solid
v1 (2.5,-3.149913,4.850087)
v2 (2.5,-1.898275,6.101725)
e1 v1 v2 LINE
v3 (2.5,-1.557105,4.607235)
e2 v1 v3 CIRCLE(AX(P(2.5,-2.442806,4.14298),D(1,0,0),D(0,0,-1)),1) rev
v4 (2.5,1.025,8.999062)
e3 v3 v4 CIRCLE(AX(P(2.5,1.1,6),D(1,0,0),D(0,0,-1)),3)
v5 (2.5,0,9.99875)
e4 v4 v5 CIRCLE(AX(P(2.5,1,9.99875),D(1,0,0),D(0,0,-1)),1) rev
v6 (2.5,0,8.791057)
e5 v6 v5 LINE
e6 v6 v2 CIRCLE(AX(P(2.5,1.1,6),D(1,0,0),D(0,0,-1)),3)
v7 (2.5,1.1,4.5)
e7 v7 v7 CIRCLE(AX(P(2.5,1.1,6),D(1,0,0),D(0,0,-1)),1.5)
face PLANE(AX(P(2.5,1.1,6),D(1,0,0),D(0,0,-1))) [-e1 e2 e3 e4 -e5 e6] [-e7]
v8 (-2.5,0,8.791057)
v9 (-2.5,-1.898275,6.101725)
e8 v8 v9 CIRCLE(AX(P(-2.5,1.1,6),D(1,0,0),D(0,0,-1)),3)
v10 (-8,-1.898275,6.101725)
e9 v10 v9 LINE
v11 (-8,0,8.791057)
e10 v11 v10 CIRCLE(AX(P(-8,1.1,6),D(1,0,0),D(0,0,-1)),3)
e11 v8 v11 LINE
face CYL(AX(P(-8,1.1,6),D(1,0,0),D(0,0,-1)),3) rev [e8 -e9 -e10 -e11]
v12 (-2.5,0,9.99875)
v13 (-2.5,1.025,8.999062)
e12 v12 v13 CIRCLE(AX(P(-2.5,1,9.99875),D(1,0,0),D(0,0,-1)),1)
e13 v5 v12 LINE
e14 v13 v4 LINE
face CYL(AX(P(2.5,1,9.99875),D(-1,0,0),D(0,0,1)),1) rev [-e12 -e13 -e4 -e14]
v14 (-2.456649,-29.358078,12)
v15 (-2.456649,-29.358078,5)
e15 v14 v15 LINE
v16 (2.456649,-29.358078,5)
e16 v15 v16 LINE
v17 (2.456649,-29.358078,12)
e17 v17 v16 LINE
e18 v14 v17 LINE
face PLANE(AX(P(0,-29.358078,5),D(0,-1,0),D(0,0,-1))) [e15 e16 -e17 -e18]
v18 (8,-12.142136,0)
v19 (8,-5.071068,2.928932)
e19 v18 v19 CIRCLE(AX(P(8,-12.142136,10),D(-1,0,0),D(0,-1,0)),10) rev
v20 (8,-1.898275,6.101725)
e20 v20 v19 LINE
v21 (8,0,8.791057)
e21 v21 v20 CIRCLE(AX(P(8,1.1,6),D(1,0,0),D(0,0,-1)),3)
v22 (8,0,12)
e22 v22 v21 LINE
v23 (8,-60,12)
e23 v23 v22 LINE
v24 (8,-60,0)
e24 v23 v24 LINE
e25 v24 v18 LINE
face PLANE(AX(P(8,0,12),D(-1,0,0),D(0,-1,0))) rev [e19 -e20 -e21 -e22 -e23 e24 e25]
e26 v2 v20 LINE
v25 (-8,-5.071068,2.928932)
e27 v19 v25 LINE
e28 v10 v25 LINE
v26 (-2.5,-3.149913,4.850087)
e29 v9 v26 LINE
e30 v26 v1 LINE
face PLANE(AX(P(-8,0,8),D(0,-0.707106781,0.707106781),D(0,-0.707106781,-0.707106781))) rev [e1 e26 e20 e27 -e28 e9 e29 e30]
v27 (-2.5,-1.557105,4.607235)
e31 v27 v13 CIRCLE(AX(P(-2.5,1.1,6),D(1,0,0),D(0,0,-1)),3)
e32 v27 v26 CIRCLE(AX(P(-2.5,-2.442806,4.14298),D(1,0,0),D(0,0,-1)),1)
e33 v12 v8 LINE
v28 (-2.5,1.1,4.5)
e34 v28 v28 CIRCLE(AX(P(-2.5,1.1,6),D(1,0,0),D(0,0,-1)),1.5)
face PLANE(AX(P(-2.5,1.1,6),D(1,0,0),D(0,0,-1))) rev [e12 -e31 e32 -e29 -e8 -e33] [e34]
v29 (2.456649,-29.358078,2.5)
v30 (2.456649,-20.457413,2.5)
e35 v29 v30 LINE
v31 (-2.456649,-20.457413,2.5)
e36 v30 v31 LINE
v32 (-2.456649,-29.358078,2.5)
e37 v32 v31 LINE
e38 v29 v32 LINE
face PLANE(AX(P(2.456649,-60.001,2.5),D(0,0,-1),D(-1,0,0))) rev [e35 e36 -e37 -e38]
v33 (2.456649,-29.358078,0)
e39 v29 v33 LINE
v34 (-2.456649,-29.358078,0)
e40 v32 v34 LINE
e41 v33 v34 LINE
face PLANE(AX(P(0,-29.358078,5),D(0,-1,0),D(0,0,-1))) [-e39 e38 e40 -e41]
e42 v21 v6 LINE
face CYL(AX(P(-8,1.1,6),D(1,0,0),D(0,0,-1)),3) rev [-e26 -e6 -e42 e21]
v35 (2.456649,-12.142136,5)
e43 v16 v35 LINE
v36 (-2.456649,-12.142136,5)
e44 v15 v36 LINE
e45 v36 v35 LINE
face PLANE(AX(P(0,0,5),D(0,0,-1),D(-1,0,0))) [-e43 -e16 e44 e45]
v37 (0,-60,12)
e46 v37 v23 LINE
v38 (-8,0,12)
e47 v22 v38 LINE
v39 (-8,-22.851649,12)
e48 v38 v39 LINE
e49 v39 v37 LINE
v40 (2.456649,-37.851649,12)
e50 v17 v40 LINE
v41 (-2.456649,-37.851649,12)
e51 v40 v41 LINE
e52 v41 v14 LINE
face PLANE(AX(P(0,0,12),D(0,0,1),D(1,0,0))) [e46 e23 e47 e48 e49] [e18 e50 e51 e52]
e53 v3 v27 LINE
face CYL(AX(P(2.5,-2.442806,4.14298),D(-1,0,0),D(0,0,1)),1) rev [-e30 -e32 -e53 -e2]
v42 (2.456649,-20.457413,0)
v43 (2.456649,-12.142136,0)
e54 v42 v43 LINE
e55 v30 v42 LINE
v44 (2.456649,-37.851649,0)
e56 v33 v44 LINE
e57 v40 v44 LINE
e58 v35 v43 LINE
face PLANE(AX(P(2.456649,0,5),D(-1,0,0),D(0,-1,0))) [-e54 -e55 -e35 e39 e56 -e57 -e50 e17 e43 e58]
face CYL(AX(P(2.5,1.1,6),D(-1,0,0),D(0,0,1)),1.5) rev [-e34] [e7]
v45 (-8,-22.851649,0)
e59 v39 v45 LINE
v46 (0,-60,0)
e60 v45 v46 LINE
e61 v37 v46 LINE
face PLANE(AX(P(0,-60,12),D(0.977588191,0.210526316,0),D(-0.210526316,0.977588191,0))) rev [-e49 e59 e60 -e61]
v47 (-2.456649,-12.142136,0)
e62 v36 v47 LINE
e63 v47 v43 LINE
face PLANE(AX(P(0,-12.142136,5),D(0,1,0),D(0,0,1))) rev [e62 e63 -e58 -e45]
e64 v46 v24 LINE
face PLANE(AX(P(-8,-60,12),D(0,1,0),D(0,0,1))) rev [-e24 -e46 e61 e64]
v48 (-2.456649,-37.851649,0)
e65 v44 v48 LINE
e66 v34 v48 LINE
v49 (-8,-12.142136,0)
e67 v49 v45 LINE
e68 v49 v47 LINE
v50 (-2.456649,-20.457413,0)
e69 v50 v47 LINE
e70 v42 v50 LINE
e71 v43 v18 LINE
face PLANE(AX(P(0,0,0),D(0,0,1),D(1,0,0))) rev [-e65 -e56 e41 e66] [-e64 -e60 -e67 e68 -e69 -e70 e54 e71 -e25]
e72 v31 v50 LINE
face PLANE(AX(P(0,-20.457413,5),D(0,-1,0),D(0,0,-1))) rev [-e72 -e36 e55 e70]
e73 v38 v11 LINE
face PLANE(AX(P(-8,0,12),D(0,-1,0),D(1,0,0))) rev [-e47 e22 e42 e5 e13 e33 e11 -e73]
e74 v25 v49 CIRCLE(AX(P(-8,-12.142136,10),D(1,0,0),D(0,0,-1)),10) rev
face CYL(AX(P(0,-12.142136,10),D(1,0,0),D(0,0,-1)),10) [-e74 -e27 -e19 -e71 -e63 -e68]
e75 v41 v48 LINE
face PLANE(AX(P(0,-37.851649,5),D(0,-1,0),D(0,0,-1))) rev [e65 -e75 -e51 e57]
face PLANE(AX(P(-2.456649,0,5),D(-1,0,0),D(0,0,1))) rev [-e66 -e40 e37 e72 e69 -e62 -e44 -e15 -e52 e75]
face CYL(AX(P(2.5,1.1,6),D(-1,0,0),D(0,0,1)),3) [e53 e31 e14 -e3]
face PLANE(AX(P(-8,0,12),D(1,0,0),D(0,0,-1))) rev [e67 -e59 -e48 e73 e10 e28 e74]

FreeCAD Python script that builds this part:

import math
import FreeCAD as App
import Part
import Sketcher

V = App.Vector
Q = App.Units.Quantity


def edges_at(feature, points):
    """Names of the edges that pass closest to the given points."""
    edges = feature.Shape.Edges
    near = lambda p: min(range(len(edges)), key=lambda i: edges[i].distToShape(Part.Vertex(*p))[0])
    return sorted({f"Edge{near(p) + 1}" for p in points})


def add_polygon(sketch, points):
    """Adds a closed chain of lines whose ends are joined by coincident constraints."""
    first, n = sketch.GeometryCount, len(points)
    for a, b in zip(points, points[1:] + points[:1]):
        sketch.addGeometry(Part.LineSegment(App.Vector(*a, 0), App.Vector(*b, 0)), False)
    for i in range(n):
        sketch.addConstraint(Sketcher.Constraint("Coincident", first + i, 2, first + (i + 1) % n, 1))

doc = App.newDocument("Part")
body = doc.addObject("PartDesign::Body", "Body")

sketch1 = body.newObject("Sketcher::SketchObject", "Sketch")
sketch1.AttachmentSupport = (doc.getObject("XY_Plane"), [""])
sketch1.MapMode = "FlatFace"
add_polygon(sketch1, [(-8, 0), (-8, -60), (8, -60), (8, 0)])
sketch1.addConstraint(Sketcher.Constraint("Vertical", 0))
sketch1.addConstraint(Sketcher.Constraint("Horizontal", 1))
sketch1.addConstraint(Sketcher.Constraint("Vertical", 2))
sketch1.addConstraint(Sketcher.Constraint("Horizontal", 3))
sketch1.addConstraint(Sketcher.Constraint("Symmetric", 2, 2, 3, 2, -1, 1))
sketch1.addConstraint(Sketcher.Constraint("DistanceX", 1, 1, 1, 2, Q("16 mm")))
sketch1.addConstraint(Sketcher.Constraint("DistanceY", 0, 2, 0, 1, Q("60 mm")))
pad1 = body.newObject("PartDesign::Pad", "Pad")
pad1.Profile = sketch1
pad1.Length = 12

sketch2 = body.newObject("Sketcher::SketchObject", "Sketch001")
sketch2.AttachmentSupport = (doc.getObject("YZ_Plane"), [""])
sketch2.MapMode = "FlatFace"
add_polygon(sketch2, [(0, 0), (0, 8), (-8, 0)])
sketch2.addConstraint(Sketcher.Constraint("Vertical", 0))
sketch2.addConstraint(Sketcher.Constraint("Horizontal", 2))
sketch2.addConstraint(Sketcher.Constraint("Coincident", 2, 2, -1, 1))
sketch2.addConstraint(Sketcher.Constraint("Equal", 2, 0))
sketch2.addConstraint(Sketcher.Constraint("DistanceX", 2, 1, 2, 2, Q("8 mm")))
pocket1 = body.newObject("PartDesign::Pocket", "Pocket")
pocket1.Profile = sketch2
pocket1.Type = "ThroughAll"
pocket1.Midplane = True

sketch3 = body.newObject("Sketcher::SketchObject", "Sketch002")
sketch3.AttachmentSupport = (doc.getObject("YZ_Plane"), [""])
sketch3.MapMode = "FlatFace"
sketch3.addGeometry(Part.ArcOfCircle(Part.Circle(V(1.1, 6, 0), V(0, 0, 1), 3), math.radians(-90), math.radians(111.510188)), False)
sketch3.addGeometry(Part.ArcOfCircle(Part.Circle(V(1.1, 6, 0), V(0, 0, 1), 3), math.radians(111.510188), math.radians(248.489812)), False)
sketch3.addGeometry(Part.ArcOfCircle(Part.Circle(V(1.1, 6, 0), V(0, 0, 1), 3), math.radians(-111.510188), math.radians(-90)), False)
sketch3.addGeometry(Part.ArcOfCircle(Part.Circle(V(1.1, 6, 0), V(0, 0, 1), 1.5), math.radians(-137.166572), math.radians(-90)), False)
sketch3.addGeometry(Part.ArcOfCircle(Part.Circle(V(1.1, 6, 0), V(0, 0, 1), 1.5), math.radians(137.166572), math.radians(222.833428)), False)
sketch3.addGeometry(Part.ArcOfCircle(Part.Circle(V(1.1, 6, 0), V(0, 0, 1), 1.5), math.radians(-90), math.radians(137.166572)), False)
sketch3.addConstraint(Sketcher.Constraint("Tangent", 0, 2, 1, 1))
sketch3.addConstraint(Sketcher.Constraint("Tangent", 1, 2, 2, 1))
sketch3.addConstraint(Sketcher.Constraint("Tangent", 2, 2, 0, 1))
sketch3.addConstraint(Sketcher.Constraint("Tangent", 3, 1, 4, 2))
sketch3.addConstraint(Sketcher.Constraint("Tangent", 4, 1, 5, 2))
sketch3.addConstraint(Sketcher.Constraint("Tangent", 5, 1, 3, 2))
sketch3.addConstraint(Sketcher.Constraint("Coincident", 3, 3, 0, 3))
sketch3.addConstraint(Sketcher.Constraint("PointOnObject", 0, 2, -2))
sketch3.addConstraint(Sketcher.Constraint("PointOnObject", 1, 2, -2))
sketch3.addConstraint(Sketcher.Constraint("PointOnObject", 3, 1, -2))
sketch3.addConstraint(Sketcher.Constraint("PointOnObject", 4, 1, -2))
sketch3.addConstraint(Sketcher.Constraint("Vertical", 5, 3, 2, 2))
sketch3.addConstraint(Sketcher.Constraint("Vertical", 2, 2, 5, 1))
sketch3.addConstraint(Sketcher.Constraint("Radius", 0, Q("3 mm")))
sketch3.addConstraint(Sketcher.Constraint("Radius", 3, Q("1.5 mm")))
sketch3.addConstraint(Sketcher.Constraint("DistanceY", -1, 1, 0, 3, Q("6 mm")))
sketch3.addConstraint(Sketcher.Constraint("DistanceX", -1, 1, 0, 3, Q("1.1 mm")))
pocket2 = body.newObject("PartDesign::Pocket", "Pocket001")
pocket2.Profile = sketch3
pocket2.Type = "ThroughAll"
pocket2.Midplane = True

sketch4 = body.newObject("Sketcher::SketchObject", "Sketch003")
sketch4.AttachmentSupport = (doc.getObject("YZ_Plane"), [""])
sketch4.MapMode = "FlatFace"
sketch4.addGeometry(Part.Circle(V(1.1, 6, 0), V(0, 0, 1), 3), False)
sketch4.addGeometry(Part.Circle(V(1.1, 6, 0), V(0, 0, 1), 1.5), False)
sketch4.addConstraint(Sketcher.Constraint("Coincident", 1, 3, 0, 3))
sketch4.addConstraint(Sketcher.Constraint("Diameter", 0, Q("6 mm")))
sketch4.addConstraint(Sketcher.Constraint("Diameter", 1, Q("3 mm")))
sketch4.addConstraint(Sketcher.Constraint("DistanceY", -1, 1, 0, 3, Q("6 mm")))
sketch4.addConstraint(Sketcher.Constraint("DistanceX", -1, 1, 0, 3, Q("1.1 mm")))
pad2 = body.newObject("PartDesign::Pad", "Pad001")
pad2.Profile = sketch4
pad2.Length = 5
pad2.Midplane = True
doc.recompute()

fillet = body.newObject("PartDesign::Fillet", "Fillet")
fillet.Base = (pad2, edges_at(pad2, [(0, -1.898, 6.102), (0, 0, 8.791)]))
fillet.Radius = 1

sketch5 = body.newObject("Sketcher::SketchObject", "Sketch004")
sketch5.AttachmentSupport = (doc.getObject("XY_Plane"), [""])
sketch5.MapMode = "FlatFace"
add_polygon(sketch5, [(-8, -22.851649), (0, -60), (-8, -60)])
sketch5.addConstraint(Sketcher.Constraint("Horizontal", 1))
sketch5.addConstraint(Sketcher.Constraint("Vertical", 2))
sketch5.addConstraint(Sketcher.Constraint("PointOnObject", 0, 2, -2))
sketch5.addConstraint(Sketcher.Constraint("DistanceX", 1, 2, 1, 1, Q("8 mm")))
sketch5.addConstraint(Sketcher.Constraint("Distance", 0, Q("38 mm")))
sketch5.addConstraint(Sketcher.Constraint("DistanceY", 0, 2, -1, 1, Q("60 mm")))
pocket3 = body.newObject("PartDesign::Pocket", "Pocket002")
pocket3.Profile = sketch5
pocket3.Type = "ThroughAll"
pocket3.Reversed = True
doc.recompute()

fillet2 = body.newObject("PartDesign::Fillet", "Fillet001")
fillet2.Base = (pocket3, edges_at(pocket3, [(0, -8, 0)]))
fillet2.Radius = 10

sketch6 = body.newObject("Sketcher::SketchObject", "Sketch005")
sketch6.AttachmentSupport = (doc.getObject("XY_Plane"), [""])
sketch6.MapMode = "FlatFace"
add_polygon(sketch6, [(2.456649, -12.142136), (2.456649, -20.457413), (-2.456649, -20.457413), (-2.456649, -12.142136)])
add_polygon(sketch6, [(2.456649, -29.358078), (2.456649, -37.851649), (-2.456649, -37.851649), (-2.456649, -29.358078)])
sketch6.addConstraint(Sketcher.Constraint("Vertical", 0))
sketch6.addConstraint(Sketcher.Constraint("Horizontal", 1))
sketch6.addConstraint(Sketcher.Constraint("Vertical", 2))
sketch6.addConstraint(Sketcher.Constraint("Horizontal", 3))
sketch6.addConstraint(Sketcher.Constraint("Vertical", 4))
sketch6.addConstraint(Sketcher.Constraint("Horizontal", 5))
sketch6.addConstraint(Sketcher.Constraint("Vertical", 6))
sketch6.addConstraint(Sketcher.Constraint("Horizontal", 7))
sketch6.addConstraint(Sketcher.Constraint("Vertical", 3, 2, 4, 2))
sketch6.addConstraint(Sketcher.Constraint("Vertical", 2, 2, 5, 2))
sketch6.addConstraint(Sketcher.Constraint("DistanceX", 1, 2, 1, 1, Q("4.913299 mm")))
sketch6.addConstraint(Sketcher.Constraint("DistanceY", 4, 2, 4, 1, Q("8.493571 mm")))
sketch6.addConstraint(Sketcher.Constraint("DistanceY", 0, 2, 0, 1, Q("8.315277 mm")))
sketch6.addConstraint(Sketcher.Constraint("DistanceX", -1, 1, 0, 2, Q("2.456649 mm")))
sketch6.addConstraint(Sketcher.Constraint("DistanceY", 4, 2, -1, 1, Q("37.851649 mm")))
sketch6.addConstraint(Sketcher.Constraint("DistanceY", 6, 2, 2, 2, Q("17.215942 mm")))
pocket4 = body.newObject("PartDesign::Pocket", "Pocket003")
pocket4.Profile = sketch6
pocket4.Length = 5
pocket4.Reversed = True

sketch7 = body.newObject("Sketcher::SketchObject", "Sketch006")
sketch7.AttachmentSupport = (doc.getObject("XY_Plane"), [""])
sketch7.MapMode = "FlatFace"
add_polygon(sketch7, [(2.456649, -29.358078), (2.456649, -37.851649), (-2.456649, -37.851649), (-2.456649, -29.358078)])
sketch7.addConstraint(Sketcher.Constraint("Vertical", 0))
sketch7.addConstraint(Sketcher.Constraint("Horizontal", 1))
sketch7.addConstraint(Sketcher.Constraint("Vertical", 2))
sketch7.addConstraint(Sketcher.Constraint("Horizontal", 3))
sketch7.addConstraint(Sketcher.Constraint("DistanceX", 1, 2, 1, 1, Q("4.913299 mm")))
sketch7.addConstraint(Sketcher.Constraint("DistanceY", 0, 2, 0, 1, Q("8.493571 mm")))
sketch7.addConstraint(Sketcher.Constraint("DistanceX", -1, 1, 0, 2, Q("2.456649 mm")))
sketch7.addConstraint(Sketcher.Constraint("DistanceY", 0, 2, -1, 1, Q("37.851649 mm")))
pocket5 = body.newObject("PartDesign::Pocket", "Pocket004")
pocket5.Profile = sketch7
pocket5.Type = "ThroughAll"
pocket5.Reversed = True

sketch8 = body.newObject("Sketcher::SketchObject", "Sketch007")
sketch8.AttachmentSupport = (doc.getObject("XZ_Plane"), [""])
sketch8.MapMode = "FlatFace"
sketch8.AttachmentOffset = App.Placement(V(0, 0, 20.457413), App.Rotation())
add_polygon(sketch8, [(-2.456649, 2.5), (-2.456649, 5), (2.456649, 5), (2.456649, 2.5)])
sketch8.addConstraint(Sketcher.Constraint("Vertical", 0))
sketch8.addConstraint(Sketcher.Constraint("Horizontal", 1))
sketch8.addConstraint(Sketcher.Constraint("Vertical", 2))
sketch8.addConstraint(Sketcher.Constraint("Horizontal", 3))
sketch8.addConstraint(Sketcher.Constraint("DistanceY", 0, 1, 0, 2, Q("2.5 mm")))
sketch8.addConstraint(Sketcher.Constraint("DistanceY", -1, 1, 0, 2, Q("5 mm")))
sketch8.addConstraint(Sketcher.Constraint("DistanceX", 1, 1, 1, 2, Q("4.913299 mm")))
sketch8.addConstraint(Sketcher.Constraint("DistanceX", 0, 2, -1, 1, Q("2.456649 mm")))
pocket6 = body.newObject("PartDesign::Pocket", "Pocket005")
pocket6.Profile = sketch8
pocket6.Type = "UpToFirst"
pocket6.Reversed = True

doc.recompute()
